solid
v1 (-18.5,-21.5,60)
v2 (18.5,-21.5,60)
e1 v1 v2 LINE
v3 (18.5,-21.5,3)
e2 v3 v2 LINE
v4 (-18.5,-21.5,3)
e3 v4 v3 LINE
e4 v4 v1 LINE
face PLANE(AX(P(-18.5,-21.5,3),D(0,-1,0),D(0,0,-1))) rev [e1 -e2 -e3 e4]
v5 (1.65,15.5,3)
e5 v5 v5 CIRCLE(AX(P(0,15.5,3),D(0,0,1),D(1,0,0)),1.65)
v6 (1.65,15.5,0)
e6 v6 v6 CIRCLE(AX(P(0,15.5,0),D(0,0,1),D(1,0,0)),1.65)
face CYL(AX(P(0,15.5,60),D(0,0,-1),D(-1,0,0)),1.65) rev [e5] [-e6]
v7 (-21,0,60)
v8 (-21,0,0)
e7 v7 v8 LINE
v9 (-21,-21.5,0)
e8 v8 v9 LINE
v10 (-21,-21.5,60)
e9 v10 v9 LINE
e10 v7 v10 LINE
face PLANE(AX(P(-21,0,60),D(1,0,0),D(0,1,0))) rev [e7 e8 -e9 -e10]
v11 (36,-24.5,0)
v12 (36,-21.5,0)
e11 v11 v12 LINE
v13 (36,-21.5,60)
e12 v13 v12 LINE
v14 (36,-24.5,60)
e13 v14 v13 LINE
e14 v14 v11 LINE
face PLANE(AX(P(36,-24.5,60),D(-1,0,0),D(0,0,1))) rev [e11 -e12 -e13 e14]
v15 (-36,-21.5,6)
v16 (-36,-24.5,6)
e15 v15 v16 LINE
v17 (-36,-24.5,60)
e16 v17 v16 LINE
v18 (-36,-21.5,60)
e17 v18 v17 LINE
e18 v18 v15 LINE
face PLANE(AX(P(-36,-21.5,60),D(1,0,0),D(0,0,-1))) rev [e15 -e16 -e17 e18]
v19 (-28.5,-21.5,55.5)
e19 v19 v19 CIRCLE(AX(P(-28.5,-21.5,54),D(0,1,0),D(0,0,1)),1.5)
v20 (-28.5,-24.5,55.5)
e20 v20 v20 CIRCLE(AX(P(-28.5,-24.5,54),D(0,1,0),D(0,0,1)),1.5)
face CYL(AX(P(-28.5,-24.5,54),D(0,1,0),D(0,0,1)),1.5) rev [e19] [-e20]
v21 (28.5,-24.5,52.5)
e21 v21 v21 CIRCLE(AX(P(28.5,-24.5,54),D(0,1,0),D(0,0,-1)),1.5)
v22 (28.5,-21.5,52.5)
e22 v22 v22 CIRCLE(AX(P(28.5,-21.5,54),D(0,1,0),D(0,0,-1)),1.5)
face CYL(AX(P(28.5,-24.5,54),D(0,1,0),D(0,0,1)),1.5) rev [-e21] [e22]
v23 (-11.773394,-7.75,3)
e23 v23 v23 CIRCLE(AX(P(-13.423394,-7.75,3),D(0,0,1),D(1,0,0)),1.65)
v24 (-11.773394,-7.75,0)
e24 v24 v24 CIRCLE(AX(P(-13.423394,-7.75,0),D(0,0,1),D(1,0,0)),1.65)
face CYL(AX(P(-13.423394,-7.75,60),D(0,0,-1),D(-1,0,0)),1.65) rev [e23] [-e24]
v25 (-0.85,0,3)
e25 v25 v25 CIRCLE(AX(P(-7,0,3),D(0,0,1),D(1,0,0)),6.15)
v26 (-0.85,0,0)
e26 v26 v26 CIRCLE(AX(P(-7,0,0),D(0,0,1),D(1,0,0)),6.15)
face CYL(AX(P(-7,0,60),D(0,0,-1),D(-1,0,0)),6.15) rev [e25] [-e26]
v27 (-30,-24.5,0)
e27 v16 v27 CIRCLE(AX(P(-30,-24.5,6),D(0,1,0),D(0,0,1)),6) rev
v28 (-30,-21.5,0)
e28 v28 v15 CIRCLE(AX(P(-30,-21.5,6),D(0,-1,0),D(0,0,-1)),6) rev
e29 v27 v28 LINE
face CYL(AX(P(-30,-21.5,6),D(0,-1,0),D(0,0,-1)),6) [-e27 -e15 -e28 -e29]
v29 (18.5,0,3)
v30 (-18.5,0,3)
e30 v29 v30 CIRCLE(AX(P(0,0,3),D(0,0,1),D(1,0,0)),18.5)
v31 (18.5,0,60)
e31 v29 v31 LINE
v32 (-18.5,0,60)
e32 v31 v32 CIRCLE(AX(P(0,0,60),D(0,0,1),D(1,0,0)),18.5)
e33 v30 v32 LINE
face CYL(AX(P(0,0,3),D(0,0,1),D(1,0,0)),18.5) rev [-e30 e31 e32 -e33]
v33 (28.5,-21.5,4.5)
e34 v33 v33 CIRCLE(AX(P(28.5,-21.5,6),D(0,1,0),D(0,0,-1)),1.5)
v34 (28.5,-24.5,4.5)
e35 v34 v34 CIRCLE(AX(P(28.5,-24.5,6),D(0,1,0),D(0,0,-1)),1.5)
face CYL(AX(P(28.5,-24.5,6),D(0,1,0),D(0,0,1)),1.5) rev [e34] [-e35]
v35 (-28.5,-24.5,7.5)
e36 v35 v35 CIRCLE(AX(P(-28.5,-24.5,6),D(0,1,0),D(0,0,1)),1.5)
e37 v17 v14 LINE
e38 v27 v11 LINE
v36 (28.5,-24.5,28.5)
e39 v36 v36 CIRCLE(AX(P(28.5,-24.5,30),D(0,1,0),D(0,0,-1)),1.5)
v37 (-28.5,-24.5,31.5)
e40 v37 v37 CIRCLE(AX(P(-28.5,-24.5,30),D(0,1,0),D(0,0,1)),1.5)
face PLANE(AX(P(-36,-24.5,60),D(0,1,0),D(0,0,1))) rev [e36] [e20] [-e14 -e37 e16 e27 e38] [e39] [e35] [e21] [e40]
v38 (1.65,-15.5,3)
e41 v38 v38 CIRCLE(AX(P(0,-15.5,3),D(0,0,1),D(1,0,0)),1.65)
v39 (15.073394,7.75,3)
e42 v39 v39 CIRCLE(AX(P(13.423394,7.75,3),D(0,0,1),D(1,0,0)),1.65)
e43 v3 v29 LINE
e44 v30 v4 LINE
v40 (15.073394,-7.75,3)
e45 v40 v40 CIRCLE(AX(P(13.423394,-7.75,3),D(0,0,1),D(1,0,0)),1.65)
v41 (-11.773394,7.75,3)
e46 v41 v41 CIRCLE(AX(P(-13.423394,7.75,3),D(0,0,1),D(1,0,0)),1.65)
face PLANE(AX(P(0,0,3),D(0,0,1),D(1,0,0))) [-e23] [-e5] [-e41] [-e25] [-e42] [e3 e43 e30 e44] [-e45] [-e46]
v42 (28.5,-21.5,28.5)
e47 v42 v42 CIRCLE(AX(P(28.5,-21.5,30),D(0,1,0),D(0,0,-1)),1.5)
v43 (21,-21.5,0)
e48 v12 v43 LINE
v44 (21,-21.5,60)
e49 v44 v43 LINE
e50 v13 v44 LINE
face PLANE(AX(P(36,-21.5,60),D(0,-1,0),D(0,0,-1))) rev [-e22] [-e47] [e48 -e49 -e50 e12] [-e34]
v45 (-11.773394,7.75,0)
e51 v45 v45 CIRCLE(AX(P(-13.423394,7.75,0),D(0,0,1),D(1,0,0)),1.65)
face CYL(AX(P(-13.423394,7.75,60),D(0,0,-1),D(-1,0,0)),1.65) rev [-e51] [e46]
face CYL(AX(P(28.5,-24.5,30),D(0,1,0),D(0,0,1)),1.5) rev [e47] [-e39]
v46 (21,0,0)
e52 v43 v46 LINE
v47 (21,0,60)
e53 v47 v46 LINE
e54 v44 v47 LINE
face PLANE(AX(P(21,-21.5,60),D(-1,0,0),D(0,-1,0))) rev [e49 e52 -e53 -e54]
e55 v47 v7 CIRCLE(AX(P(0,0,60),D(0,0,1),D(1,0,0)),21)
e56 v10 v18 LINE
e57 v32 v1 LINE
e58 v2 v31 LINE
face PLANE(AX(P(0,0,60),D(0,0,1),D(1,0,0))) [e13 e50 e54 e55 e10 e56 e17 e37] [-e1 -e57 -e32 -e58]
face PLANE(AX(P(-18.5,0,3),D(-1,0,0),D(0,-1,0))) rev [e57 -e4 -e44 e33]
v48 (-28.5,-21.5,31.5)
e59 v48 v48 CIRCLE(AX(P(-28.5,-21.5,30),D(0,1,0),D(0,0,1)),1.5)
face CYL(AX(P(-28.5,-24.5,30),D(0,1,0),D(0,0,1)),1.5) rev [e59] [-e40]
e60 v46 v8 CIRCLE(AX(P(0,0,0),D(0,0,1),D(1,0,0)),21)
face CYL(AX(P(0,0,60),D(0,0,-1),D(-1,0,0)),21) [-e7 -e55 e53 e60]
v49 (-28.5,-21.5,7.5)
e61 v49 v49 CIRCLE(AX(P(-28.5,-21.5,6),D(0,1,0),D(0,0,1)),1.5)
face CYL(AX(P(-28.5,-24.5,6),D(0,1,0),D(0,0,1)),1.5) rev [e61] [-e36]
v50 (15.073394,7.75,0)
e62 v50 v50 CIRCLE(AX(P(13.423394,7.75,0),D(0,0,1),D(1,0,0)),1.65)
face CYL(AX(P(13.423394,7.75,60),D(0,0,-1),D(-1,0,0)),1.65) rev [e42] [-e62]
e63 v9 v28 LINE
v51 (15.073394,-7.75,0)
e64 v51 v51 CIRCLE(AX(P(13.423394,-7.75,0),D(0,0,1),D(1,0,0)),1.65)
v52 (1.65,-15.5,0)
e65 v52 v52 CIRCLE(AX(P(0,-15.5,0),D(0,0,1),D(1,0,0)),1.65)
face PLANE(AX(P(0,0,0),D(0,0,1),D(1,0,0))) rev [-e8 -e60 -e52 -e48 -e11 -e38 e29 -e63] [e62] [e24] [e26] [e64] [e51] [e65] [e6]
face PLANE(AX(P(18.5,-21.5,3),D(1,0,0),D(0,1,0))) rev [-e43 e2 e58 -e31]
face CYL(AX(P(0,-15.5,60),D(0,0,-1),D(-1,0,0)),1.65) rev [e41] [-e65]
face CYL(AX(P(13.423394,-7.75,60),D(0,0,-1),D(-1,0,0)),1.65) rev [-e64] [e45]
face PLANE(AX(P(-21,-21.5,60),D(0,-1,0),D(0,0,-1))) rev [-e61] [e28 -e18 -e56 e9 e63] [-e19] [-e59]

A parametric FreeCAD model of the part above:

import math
import FreeCAD as App
import Part
import Sketcher
Q = App.Units.Quantity


def edges_at(feature, points):
    """Names of the edges that pass closest to the given points."""
    edges = feature.Shape.Edges
    near = lambda p: min(range(len(edges)), key=lambda i: edges[i].distToShape(Part.Vertex(*p))[0])
    return sorted({f"Edge{near(p) + 1}" for p in points})

doc = App.newDocument("Part")
body = doc.addObject("PartDesign::Body", "Body")

sketch1 = doc.addObject("Sketcher::SketchObject", "Sketch")
body.addObject(sketch1)
sketch1.AttachmentSupport = (doc.XY_Plane, [""])
sketch1.MapMode = "FlatFace"
sketch1.addGeometry(Part.LineSegment(App.Vector(-21, 0, 0), App.Vector(-21, -21.5, 0)), False)
sketch1.addGeometry(Part.LineSegment(App.Vector(-21, -21.5, 0), App.Vector(-36, -21.5, 0)), False)
sketch1.addGeometry(Part.LineSegment(App.Vector(-36, -21.5, 0), App.Vector(-36, -24.5, 0)), False)
sketch1.addGeometry(Part.LineSegment(App.Vector(-36, -24.5, 0), App.Vector(36, -24.5, 0)), False)
sketch1.addGeometry(Part.LineSegment(App.Vector(36, -24.5, 0), App.Vector(36, -21.5, 0)), False)
sketch1.addGeometry(Part.LineSegment(App.Vector(36, -21.5, 0), App.Vector(21, -21.5, 0)), False)
sketch1.addGeometry(Part.LineSegment(App.Vector(21, -21.5, 0), App.Vector(21, 0, 0)), False)
sketch1.addGeometry(Part.ArcOfCircle(Part.Circle(App.Vector(0, 0, 0), App.Vector(0, 0, 1), 21), math.radians(0), math.radians(180)), False)
sketch1.addGeometry(Part.Circle(App.Vector(-13.4, -7.8, 0), App.Vector(0, 0, 1), 1.6), False)
sketch1.addGeometry(Part.Circle(App.Vector(0, -15.5, 0), App.Vector(0, 0, 1), 1.6), False)
sketch1.addGeometry(Part.Circle(App.Vector(13.4, -7.8, 0), App.Vector(0, 0, 1), 1.6), False)
sketch1.addGeometry(Part.Circle(App.Vector(-13.4, 7.8, 0), App.Vector(0, 0, 1), 1.6), False)
sketch1.addGeometry(Part.Circle(App.Vector(-7, 0, 0), App.Vector(0, 0, 1), 6.2), False)
sketch1.addGeometry(Part.Circle(App.Vector(13.4, 7.8, 0), App.Vector(0, 0, 1), 1.6), False)
sketch1.addGeometry(Part.Circle(App.Vector(0, 15.5, 0), App.Vector(0, 0, 1), 1.6), False)
sketch1.addConstraint(Sketcher.Constraint("Coincident", 0, 2, 1, 1))
sketch1.addConstraint(Sketcher.Constraint("Coincident", 1, 2, 2, 1))
sketch1.addConstraint(Sketcher.Constraint("Coincident", 2, 2, 3, 1))
sketch1.addConstraint(Sketcher.Constraint("Coincident", 3, 2, 4, 1))
sketch1.addConstraint(Sketcher.Constraint("Coincident", 4, 2, 5, 1))
sketch1.addConstraint(Sketcher.Constraint("Coincident", 5, 2, 6, 1))
sketch1.addConstraint(Sketcher.Constraint("Tangent", 6, 2, 7, 1))
sketch1.addConstraint(Sketcher.Constraint("Tangent", 7, 2, 0, 1))
sketch1.addConstraint(Sketcher.Constraint("Vertical", 0))
sketch1.addConstraint(Sketcher.Constraint("Horizontal", 1))
sketch1.addConstraint(Sketcher.Constraint("Vertical", 2))
sketch1.addConstraint(Sketcher.Constraint("Horizontal", 3))
sketch1.addConstraint(Sketcher.Constraint("Vertical", 4))
sketch1.addConstraint(Sketcher.Constraint("Horizontal", 5))
sketch1.addConstraint(Sketcher.Constraint("Vertical", 6))
sketch1.addConstraint(Sketcher.Constraint("Coincident", 7, 3, -1, 1))
sketch1.addConstraint(Sketcher.Constraint("Equal", 8, 9))
sketch1.addConstraint(Sketcher.Constraint("Equal", 9, 10))
sketch1.addConstraint(Sketcher.Constraint("Equal", 10, 11))
sketch1.addConstraint(Sketcher.Constraint("Equal", 11, 13))
sketch1.addConstraint(Sketcher.Constraint("Equal", 13, 14))
sketch1.addConstraint(Sketcher.Constraint("Symmetric", 10, 3, 11, 3, -1, 1))
sketch1.addConstraint(Sketcher.Constraint("Symmetric", 8, 3, 13, 3, -1, 1))
sketch1.addConstraint(Sketcher.Constraint("Symmetric", 9, 3, 14, 3, -1, 1))
sketch1.addConstraint(Sketcher.Constraint("Symmetric", 8, 3, 10, 3, -2))
sketch1.addConstraint(Sketcher.Constraint("Symmetric", 1, 2, 4, 2, -2))
sketch1.addConstraint(Sketcher.Constraint("PointOnObject", 9, 3, -2))
sketch1.addConstraint(Sketcher.Constraint("PointOnObject", 12, 3, -1))
sketch1.addConstraint(Sketcher.Constraint("Radius", 7, Q("21 mm")))
sketch1.addConstraint(Sketcher.Constraint("Diameter", 8, Q("3.3 mm")))
sketch1.addConstraint(Sketcher.Constraint("Diameter", 12, Q("12.3 mm")))
sketch1.addConstraint(Sketcher.Constraint("DistanceX", 1, 2, 1, 1, Q("15 mm")))
sketch1.addConstraint(Sketcher.Constraint("DistanceY", 2, 2, 2, 1, Q("3 mm")))
sketch1.addConstraint(Sketcher.Constraint("DistanceY", 0, 2, 0, 1, Q("21.5 mm")))
sketch1.addConstraint(Sketcher.Constraint("DistanceX", 12, 3, -1, 1, Q("7 mm")))
sketch1.addConstraint(Sketcher.Constraint("DistanceY", 0, 2, 9, 3, Q("6 mm")))
sketch1.addConstraint(Sketcher.Constraint("DistanceY", 8, 3, 11, 3, Q("15.5 mm")))
sketch1.addConstraint(Sketcher.Constraint("DistanceX", 8, 3, -1, 1, Q("13.423394 mm")))
pad1 = doc.addObject("PartDesign::Pad", "Pad")
body.addObject(pad1)
pad1.Profile = sketch1
pad1.Length = 60

sketch2 = doc.addObject("Sketcher::SketchObject", "Sketch001")
body.addObject(sketch2)
sketch2.AttachmentSupport = (doc.XY_Plane, [""])
sketch2.MapMode = "FlatFace"
sketch2.AttachmentOffset = App.Placement(App.Vector(0, 0, 60), App.Rotation())
sketch2.addGeometry(Part.LineSegment(App.Vector(-18, 0, 0), App.Vector(-18, -22, 0)), False)
sketch2.addGeometry(Part.LineSegment(App.Vector(-18, -22, 0), App.Vector(18, -22, 0)), False)
sketch2.addGeometry(Part.LineSegment(App.Vector(18, -22, 0), App.Vector(18, 0, 0)), False)
sketch2.addGeometry(Part.ArcOfCircle(Part.Circle(App.Vector(0, 0, 0), App.Vector(0, 0, 1), 18), math.radians(0), math.radians(180)), False)
sketch2.addConstraint(Sketcher.Constraint("Coincident", 0, 2, 1, 1))
sketch2.addConstraint(Sketcher.Constraint("Coincident", 1, 2, 2, 1))
sketch2.addConstraint(Sketcher.Constraint("Tangent", 2, 2, 3, 1))
sketch2.addConstraint(Sketcher.Constraint("Tangent", 3, 2, 0, 1))
sketch2.addConstraint(Sketcher.Constraint("Vertical", 0))
sketch2.addConstraint(Sketcher.Constraint("Horizontal", 1))
sketch2.addConstraint(Sketcher.Constraint("Vertical", 2))
sketch2.addConstraint(Sketcher.Constraint("Coincident", 3, 3, -1, 1))
sketch2.addConstraint(Sketcher.Constraint("Radius", 3, Q("18.5 mm")))
sketch2.addConstraint(Sketcher.Constraint("DistanceY", 0, 2, 0, 1, Q("21.5 mm")))
pocket1 = doc.addObject("PartDesign::Pocket", "Pocket")
body.addObject(pocket1)
pocket1.Profile = sketch2
pocket1.Length = 57

sketch3 = doc.addObject("Sketcher::SketchObject", "Sketch002")
body.addObject(sketch3)
sketch3.AttachmentSupport = (doc.XZ_Plane, [""])
sketch3.MapMode = "FlatFace"
sketch3.AttachmentOffset = App.Placement(App.Vector(0, 0, 21.5), App.Rotation())
sketch3.addGeometry(Part.Circle(App.Vector(-28.5, 30, 0), App.Vector(0, 0, 1), 1.5), False)
sketch3.addGeometry(Part.Circle(App.Vector(-28.5, 6, 0), App.Vector(0, 0, 1), 1.5), False)
sketch3.addGeometry(Part.Circle(App.Vector(-28.5, 54, 0), App.Vector(0, 0, 1), 1.5), False)
sketch3.addGeometry(Part.Circle(App.Vector(28.5, 54, 0), App.Vector(0, 0, 1), 1.5), False)
sketch3.addGeometry(Part.Circle(App.Vector(28.5, 6, 0), App.Vector(0, 0, 1), 1.5), False)
sketch3.addGeometry(Part.Circle(App.Vector(28.5, 30, 0), App.Vector(0, 0, 1), 1.5), False)
sketch3.addConstraint(Sketcher.Constraint("Equal", 0, 1))
sketch3.addConstraint(Sketcher.Constraint("Equal", 1, 2))
sketch3.addConstraint(Sketcher.Constraint("Equal", 2, 3))
sketch3.addConstraint(Sketcher.Constraint("Equal", 3, 4))
sketch3.addConstraint(Sketcher.Constraint("Equal", 4, 5))
sketch3.addConstraint(Sketcher.Constraint("Symmetric", 2, 3, 3, 3, -2))
sketch3.addConstraint(Sketcher.Constraint("Symmetric", 1, 3, 4, 3, -2))
sketch3.addConstraint(Sketcher.Constraint("Symmetric", 0, 3, 5, 3, -2))
sketch3.addConstraint(Sketcher.Constraint("Vertical", 0, 3, 1, 3))
sketch3.addConstraint(Sketcher.Constraint("Vertical", 1, 3, 2, 3))
sketch3.addConstraint(Sketcher.Constraint("Diameter", 0, Q("3 mm")))
sketch3.addConstraint(Sketcher.Constraint("DistanceY", -1, 1, 0, 3, Q("30 mm")))
sketch3.addConstraint(Sketcher.Constraint("DistanceY", -1, 1, 1, 3, Q("6 mm")))
sketch3.addConstraint(Sketcher.Constraint("DistanceY", -1, 1, 2, 3, Q("54 mm")))
sketch3.addConstraint(Sketcher.Constraint("DistanceX", 2, 3, 3, 3, Q("57 mm")))
pocket2 = doc.addObject("PartDesign::Pocket", "Pocket001")
body.addObject(pocket2)
pocket2.Profile = sketch3
pocket2.Type = "ThroughAll"
pocket2.Reversed = True
doc.recompute()

fillet = doc.addObject("PartDesign::Fillet", "Fillet")
body.addObject(fillet)
fillet.Base = (pocket2, edges_at(pocket2, [(-36, -23, 0)]))
fillet.Radius = 6

doc.recompute()
